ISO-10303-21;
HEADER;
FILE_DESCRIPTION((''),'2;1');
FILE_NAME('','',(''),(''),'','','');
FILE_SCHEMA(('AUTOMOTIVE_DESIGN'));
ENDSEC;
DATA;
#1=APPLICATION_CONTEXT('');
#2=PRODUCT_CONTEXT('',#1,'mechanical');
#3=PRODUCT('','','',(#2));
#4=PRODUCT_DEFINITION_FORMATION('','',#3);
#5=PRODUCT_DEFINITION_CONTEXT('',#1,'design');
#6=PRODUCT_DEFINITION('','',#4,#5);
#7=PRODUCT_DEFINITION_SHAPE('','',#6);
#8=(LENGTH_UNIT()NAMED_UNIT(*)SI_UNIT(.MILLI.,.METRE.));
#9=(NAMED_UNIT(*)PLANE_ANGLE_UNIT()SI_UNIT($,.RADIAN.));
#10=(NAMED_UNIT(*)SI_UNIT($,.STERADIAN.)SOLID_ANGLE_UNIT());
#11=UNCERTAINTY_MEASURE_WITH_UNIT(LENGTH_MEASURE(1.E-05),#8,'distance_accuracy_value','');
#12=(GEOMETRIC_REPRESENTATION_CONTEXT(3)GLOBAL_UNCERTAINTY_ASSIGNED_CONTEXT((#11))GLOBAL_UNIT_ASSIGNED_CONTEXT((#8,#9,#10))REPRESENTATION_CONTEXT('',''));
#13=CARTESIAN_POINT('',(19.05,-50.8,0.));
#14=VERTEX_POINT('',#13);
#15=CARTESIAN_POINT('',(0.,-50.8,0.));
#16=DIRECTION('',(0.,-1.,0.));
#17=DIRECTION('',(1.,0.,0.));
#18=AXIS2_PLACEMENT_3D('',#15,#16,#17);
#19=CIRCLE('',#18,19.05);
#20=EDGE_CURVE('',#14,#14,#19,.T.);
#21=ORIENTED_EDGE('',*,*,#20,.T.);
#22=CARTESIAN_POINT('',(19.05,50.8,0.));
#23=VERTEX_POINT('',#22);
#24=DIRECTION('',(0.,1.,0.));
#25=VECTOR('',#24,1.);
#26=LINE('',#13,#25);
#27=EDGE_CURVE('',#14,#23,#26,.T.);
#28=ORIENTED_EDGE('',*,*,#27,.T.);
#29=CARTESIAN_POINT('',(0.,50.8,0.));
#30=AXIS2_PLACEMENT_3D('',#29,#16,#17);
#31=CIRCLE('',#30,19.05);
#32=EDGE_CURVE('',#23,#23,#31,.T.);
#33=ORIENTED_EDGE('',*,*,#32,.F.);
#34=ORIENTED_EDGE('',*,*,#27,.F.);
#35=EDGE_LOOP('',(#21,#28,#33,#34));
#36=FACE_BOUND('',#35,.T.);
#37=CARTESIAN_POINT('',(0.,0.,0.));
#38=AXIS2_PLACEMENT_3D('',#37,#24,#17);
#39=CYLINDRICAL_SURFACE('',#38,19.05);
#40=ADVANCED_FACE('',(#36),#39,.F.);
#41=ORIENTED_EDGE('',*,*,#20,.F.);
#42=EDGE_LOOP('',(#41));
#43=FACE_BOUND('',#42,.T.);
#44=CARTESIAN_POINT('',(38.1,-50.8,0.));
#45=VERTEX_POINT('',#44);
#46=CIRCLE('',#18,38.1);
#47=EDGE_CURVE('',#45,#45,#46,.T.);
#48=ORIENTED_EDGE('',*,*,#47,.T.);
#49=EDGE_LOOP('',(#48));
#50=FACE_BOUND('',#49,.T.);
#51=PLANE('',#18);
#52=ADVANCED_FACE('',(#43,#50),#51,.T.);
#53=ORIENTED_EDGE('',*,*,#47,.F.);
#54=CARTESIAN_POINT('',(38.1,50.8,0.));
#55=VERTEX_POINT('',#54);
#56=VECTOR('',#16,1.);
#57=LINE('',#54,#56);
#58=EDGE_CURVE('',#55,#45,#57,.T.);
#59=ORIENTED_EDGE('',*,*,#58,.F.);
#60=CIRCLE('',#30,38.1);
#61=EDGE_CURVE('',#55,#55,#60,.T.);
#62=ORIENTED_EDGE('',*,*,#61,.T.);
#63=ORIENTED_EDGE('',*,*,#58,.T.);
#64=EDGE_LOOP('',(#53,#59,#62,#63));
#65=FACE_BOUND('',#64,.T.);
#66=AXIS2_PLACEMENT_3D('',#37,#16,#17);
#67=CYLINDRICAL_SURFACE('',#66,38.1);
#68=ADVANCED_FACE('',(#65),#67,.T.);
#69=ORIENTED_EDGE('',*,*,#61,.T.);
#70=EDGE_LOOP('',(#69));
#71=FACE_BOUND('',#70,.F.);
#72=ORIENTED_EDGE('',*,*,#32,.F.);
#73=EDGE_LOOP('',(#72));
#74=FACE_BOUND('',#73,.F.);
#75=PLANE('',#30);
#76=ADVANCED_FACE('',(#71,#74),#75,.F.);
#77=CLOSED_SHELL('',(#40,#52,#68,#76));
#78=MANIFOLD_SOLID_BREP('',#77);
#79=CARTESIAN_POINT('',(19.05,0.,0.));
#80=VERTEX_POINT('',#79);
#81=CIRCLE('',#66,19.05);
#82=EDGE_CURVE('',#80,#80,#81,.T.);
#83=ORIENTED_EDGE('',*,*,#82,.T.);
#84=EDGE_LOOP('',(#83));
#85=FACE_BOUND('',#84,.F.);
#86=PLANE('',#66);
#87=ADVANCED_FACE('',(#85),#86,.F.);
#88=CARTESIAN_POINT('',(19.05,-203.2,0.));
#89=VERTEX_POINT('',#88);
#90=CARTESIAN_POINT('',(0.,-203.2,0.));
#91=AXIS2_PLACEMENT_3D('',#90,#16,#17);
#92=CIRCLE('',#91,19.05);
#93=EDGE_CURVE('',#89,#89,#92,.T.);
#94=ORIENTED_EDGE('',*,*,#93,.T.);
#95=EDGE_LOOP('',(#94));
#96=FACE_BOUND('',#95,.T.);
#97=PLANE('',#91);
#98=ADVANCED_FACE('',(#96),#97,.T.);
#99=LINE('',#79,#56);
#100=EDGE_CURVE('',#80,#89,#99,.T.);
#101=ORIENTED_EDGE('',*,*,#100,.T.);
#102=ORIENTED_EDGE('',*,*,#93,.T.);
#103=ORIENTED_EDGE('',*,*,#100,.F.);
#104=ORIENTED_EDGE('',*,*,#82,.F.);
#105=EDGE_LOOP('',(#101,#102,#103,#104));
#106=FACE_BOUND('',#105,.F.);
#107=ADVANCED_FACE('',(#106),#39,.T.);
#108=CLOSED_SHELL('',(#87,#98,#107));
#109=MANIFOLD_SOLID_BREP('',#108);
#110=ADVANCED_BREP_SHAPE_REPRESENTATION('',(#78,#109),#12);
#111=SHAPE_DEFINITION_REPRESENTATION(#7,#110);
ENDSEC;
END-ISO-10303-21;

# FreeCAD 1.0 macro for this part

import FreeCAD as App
import Part
import Sketcher
from FreeCAD import Vector
Q = App.Units.Quantity

doc = App.newDocument("Part")
body = doc.addObject("PartDesign::Body", "Body")

sketch1 = doc.addObject("Sketcher::SketchObject", "Sketch")
body.addObject(sketch1)
sketch1.AttachmentSupport = (doc.XZ_Plane, [""])
sketch1.MapMode = "FlatFace"
sketch1.addGeometry([
    Part.Circle(Vector(0, 0, 0), Vector(0, 0, 1), 38.1),
    Part.Circle(Vector(0, 0, 0), Vector(0, 0, 1), 19.05),
], False)
sketch1.addConstraint([
    Sketcher.Constraint("Coincident", 0, 3, -1, 1),
    Sketcher.Constraint("Coincident", 1, 3, -1, 1),
    Sketcher.Constraint("Diameter", 0, Q("3 in")),
    Sketcher.Constraint("Diameter", 1, Q("1.5 in")),
])
pad1 = doc.addObject("PartDesign::Pad", "Pad")
body.addObject(pad1)
pad1.Profile = sketch1
pad1.Length = Q("4 in")
pad1.Midplane = True
body2 = doc.addObject("PartDesign::Body", "Body001")

sketch2 = doc.addObject("Sketcher::SketchObject", "Sketch001")
body2.addObject(sketch2)
sketch2.AttachmentSupport = (doc.getObject("XZ_Plane001"), [""])
sketch2.MapMode = "FlatFace"
sketch2.addGeometry(Part.Circle(Vector(0, 0, 0), Vector(0, 0, 1), 19.05), False)
sketch2.addConstraint([
    Sketcher.Constraint("Coincident", 0, 3, -1, 1),
    Sketcher.Constraint("Diameter", 0, Q("1.5 in")),
])
pad2 = doc.addObject("PartDesign::Pad", "Pad001")
body2.addObject(pad2)
pad2.Profile = sketch2
pad2.Length = Q("8 in")

doc.recompute()
